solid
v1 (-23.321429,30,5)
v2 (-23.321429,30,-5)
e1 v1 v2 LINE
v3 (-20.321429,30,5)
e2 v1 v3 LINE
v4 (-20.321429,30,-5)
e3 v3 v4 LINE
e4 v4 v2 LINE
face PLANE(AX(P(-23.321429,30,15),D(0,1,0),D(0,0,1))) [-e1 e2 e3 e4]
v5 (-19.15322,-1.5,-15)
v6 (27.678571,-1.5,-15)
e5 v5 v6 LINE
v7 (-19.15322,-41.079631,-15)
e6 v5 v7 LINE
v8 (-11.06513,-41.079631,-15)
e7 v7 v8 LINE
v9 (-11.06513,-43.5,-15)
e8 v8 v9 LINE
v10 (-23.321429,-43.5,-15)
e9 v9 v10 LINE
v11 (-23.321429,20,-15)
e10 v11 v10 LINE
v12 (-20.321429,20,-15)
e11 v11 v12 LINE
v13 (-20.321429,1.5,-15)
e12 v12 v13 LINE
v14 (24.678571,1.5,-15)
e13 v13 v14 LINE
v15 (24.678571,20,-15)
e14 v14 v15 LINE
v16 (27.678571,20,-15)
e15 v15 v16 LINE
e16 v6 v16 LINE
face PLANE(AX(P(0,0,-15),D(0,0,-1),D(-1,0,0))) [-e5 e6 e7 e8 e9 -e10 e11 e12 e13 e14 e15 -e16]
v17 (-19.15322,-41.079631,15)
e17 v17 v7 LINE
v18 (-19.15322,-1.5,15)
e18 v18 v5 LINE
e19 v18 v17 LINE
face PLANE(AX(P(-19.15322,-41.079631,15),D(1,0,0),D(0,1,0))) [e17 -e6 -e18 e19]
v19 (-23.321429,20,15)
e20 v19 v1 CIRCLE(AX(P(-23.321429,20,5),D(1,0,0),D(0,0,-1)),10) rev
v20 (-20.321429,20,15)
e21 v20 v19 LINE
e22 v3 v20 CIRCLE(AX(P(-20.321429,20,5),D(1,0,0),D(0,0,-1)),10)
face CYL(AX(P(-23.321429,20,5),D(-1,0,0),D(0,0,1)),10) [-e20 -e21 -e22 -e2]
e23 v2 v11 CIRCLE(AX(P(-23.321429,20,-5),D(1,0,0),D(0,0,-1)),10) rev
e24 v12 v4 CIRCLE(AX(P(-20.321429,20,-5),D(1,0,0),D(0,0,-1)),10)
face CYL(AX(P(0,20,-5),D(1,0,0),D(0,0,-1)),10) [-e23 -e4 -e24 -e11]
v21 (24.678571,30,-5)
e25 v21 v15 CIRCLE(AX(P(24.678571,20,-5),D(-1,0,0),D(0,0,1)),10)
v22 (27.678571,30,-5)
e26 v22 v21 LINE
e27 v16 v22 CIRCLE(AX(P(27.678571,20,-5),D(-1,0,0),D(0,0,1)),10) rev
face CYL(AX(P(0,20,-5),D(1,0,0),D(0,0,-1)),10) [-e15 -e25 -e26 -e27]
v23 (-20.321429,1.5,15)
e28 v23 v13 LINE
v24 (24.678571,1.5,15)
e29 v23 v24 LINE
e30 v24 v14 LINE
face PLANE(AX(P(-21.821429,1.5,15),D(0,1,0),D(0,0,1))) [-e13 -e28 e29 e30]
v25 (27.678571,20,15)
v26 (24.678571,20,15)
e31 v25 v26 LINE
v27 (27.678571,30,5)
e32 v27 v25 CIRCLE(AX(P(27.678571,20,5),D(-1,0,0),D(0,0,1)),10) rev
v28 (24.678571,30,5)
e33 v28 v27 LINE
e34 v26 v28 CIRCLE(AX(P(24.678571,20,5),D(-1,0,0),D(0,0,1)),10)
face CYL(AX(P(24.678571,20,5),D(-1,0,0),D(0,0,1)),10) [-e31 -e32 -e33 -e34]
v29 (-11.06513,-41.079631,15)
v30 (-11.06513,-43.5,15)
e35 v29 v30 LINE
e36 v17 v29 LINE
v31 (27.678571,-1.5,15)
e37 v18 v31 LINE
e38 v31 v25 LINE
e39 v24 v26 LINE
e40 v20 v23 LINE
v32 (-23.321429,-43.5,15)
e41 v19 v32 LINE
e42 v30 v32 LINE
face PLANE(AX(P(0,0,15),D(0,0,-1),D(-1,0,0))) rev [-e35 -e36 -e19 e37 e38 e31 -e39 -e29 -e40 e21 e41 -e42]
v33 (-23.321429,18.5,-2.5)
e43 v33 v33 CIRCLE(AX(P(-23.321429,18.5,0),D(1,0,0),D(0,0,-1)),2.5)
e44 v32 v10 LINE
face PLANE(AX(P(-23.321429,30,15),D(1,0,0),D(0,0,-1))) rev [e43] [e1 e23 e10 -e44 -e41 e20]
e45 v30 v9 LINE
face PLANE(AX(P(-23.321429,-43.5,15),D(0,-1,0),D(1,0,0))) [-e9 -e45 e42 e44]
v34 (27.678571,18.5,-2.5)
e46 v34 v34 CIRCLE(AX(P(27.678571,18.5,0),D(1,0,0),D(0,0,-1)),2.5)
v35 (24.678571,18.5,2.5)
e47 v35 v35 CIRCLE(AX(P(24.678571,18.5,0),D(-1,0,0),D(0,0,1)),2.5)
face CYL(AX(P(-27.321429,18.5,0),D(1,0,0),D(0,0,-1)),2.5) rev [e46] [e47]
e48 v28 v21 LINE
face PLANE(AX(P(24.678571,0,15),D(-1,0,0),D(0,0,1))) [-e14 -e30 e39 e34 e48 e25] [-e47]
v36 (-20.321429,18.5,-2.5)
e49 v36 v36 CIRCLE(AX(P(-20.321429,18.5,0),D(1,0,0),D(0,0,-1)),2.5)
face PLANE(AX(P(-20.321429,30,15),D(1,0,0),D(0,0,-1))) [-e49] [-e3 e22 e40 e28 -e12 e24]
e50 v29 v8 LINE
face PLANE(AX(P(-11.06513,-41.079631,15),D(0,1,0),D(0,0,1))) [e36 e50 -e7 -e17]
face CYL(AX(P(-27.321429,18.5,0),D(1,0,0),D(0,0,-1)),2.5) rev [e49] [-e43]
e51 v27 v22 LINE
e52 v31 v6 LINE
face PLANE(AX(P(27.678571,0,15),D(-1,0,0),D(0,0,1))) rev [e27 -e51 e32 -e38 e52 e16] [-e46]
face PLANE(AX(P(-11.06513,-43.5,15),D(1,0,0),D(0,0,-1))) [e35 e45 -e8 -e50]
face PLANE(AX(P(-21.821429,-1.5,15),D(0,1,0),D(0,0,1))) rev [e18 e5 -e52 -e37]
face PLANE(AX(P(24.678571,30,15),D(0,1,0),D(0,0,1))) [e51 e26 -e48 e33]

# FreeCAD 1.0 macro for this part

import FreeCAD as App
import Part
import Sketcher


def edges_at(feature, points):
    """Names of the edges that pass closest to the given points."""
    edges = feature.Shape.Edges
    near = lambda p: min(range(len(edges)), key=lambda i: edges[i].distToShape(Part.Vertex(*p))[0])
    return sorted({f"Edge{near(p) + 1}" for p in points})

doc = App.newDocument("Part")
body = doc.addObject("PartDesign::Body", "Body")

# Sketch on XY plane
sketch1 = doc.addObject("Sketcher::SketchObject", "Sketch")
body.addObject(sketch1)
sketch1.AttachmentSupport = (doc.XY_Plane, [""])
sketch1.MapMode = "FlatFace"
sketch1.addGeometry(Part.LineSegment(App.Vector(-23.3, 30, 0), App.Vector(-23.3, -1.5, 0)), False)
sketch1.addGeometry(Part.LineSegment(App.Vector(-23.3, -1.5, 0), App.Vector(27.7, -1.5, 0)), False)
sketch1.addGeometry(Part.LineSegment(App.Vector(27.7, -1.5, 0), App.Vector(27.7, 30, 0)), False)
sketch1.addGeometry(Part.LineSegment(App.Vector(27.7, 30, 0), App.Vector(24.7, 30, 0)), False)
sketch1.addGeometry(Part.LineSegment(App.Vector(24.7, 30, 0), App.Vector(24.7, 1.5, 0)), False)
sketch1.addGeometry(Part.LineSegment(App.Vector(24.7, 1.5, 0), App.Vector(-20.3, 1.5, 0)), False)
sketch1.addGeometry(Part.LineSegment(App.Vector(-20.3, 1.5, 0), App.Vector(-20.3, 30, 0)), False)
sketch1.addGeometry(Part.LineSegment(App.Vector(-20.3, 30, 0), App.Vector(-23.3, 30, 0)), False)
sketch1.addConstraint(Sketcher.Constraint("Coincident", 0, 2, 1, 1))
sketch1.addConstraint(Sketcher.Constraint("Coincident", 1, 2, 2, 1))
sketch1.addConstraint(Sketcher.Constraint("Coincident", 2, 2, 3, 1))
sketch1.addConstraint(Sketcher.Constraint("Coincident", 3, 2, 4, 1))
sketch1.addConstraint(Sketcher.Constraint("Coincident", 4, 2, 5, 1))
sketch1.addConstraint(Sketcher.Constraint("Coincident", 5, 2, 6, 1))
sketch1.addConstraint(Sketcher.Constraint("Coincident", 6, 2, 7, 1))
sketch1.addConstraint(Sketcher.Constraint("Coincident", 7, 2, 0, 1))
sketch1.addConstraint(Sketcher.Constraint("Vertical", 0))
sketch1.addConstraint(Sketcher.Constraint("Horizontal", 1))
sketch1.addConstraint(Sketcher.Constraint("Vertical", 2))
sketch1.addConstraint(Sketcher.Constraint("Horizontal", 3))
sketch1.addConstraint(Sketcher.Constraint("Vertical", 4))
sketch1.addConstraint(Sketcher.Constraint("Horizontal", 5))
sketch1.addConstraint(Sketcher.Constraint("Vertical", 6))
sketch1.addConstraint(Sketcher.Constraint("Horizontal", 7))
sketch1.addConstraint(Sketcher.Constraint("Horizontal", 3, 2, 6, 2))
sketch1.addConstraint(Sketcher.Constraint("Equal", 3, 7))
sketch1.addConstraint(Sketcher.Constraint("DistanceX", 1, 1, 1, 2, 51.0))
sketch1.addConstraint(Sketcher.Constraint("DistanceX", 3, 2, 3, 1, 3.0))
sketch1.addConstraint(Sketcher.Constraint("DistanceY", 0, 2, 0, 1, 31.5))
sketch1.addConstraint(Sketcher.Constraint("DistanceY", 4, 2, 4, 1, 28.5))
sketch1.addConstraint(Sketcher.Constraint("DistanceY", -1, 1, 2, 2, 30.0))
sketch1.addConstraint(Sketcher.Constraint("DistanceX", 0, 2, -1, 1, 23.321429))
pad1 = doc.addObject("PartDesign::Pad", "Pad")
body.addObject(pad1)
pad1.Profile = sketch1
pad1.Length = 30
pad1.Midplane = True
doc.recompute()

fillet = doc.addObject("PartDesign::Fillet", "Fillet")
body.addObject(fillet)
fillet.Base = (pad1, edges_at(pad1, [
    (-21.821, 30, 15),
    (26.179, 30, 15),
    (-21.821, 30, -15),
    (26.179, 30, -15),
]))
fillet.Radius = 10

# Sketch on YZ plane
sketch2 = doc.addObject("Sketcher::SketchObject", "Sketch001")
body.addObject(sketch2)
sketch2.AttachmentSupport = (doc.YZ_Plane, [""])
sketch2.MapMode = "FlatFace"
sketch2.AttachmentOffset = App.Placement(App.Vector(0, 0, 27.678571), App.Rotation())
sketch2.addGeometry(Part.Circle(App.Vector(18.5, 0, 0), App.Vector(0, 0, 1), 2.5), False)
sketch2.addConstraint(Sketcher.Constraint("PointOnObject", 0, 3, -1))
sketch2.addConstraint(Sketcher.Constraint("Diameter", 0, 5.0))
sketch2.addConstraint(Sketcher.Constraint("DistanceX", -1, 1, 0, 3, 18.5))
pocket1 = doc.addObject("PartDesign::Pocket", "Pocket")
body.addObject(pocket1)
pocket1.Profile = sketch2
pocket1.Length = 55

# Sketch on XY plane
sketch3 = doc.addObject("Sketcher::SketchObject", "Sketch002")
body.addObject(sketch3)
sketch3.AttachmentSupport = (doc.XY_Plane, [""])
sketch3.MapMode = "FlatFace"
sketch3.AttachmentOffset = App.Placement(App.Vector(0, 0, -15), App.Rotation())
sketch3.addGeometry(Part.LineSegment(App.Vector(-23.3, -43.5, 0), App.Vector(-23.3, -1.5, 0)), False)
sketch3.addGeometry(Part.LineSegment(App.Vector(-23.3, -1.5, 0), App.Vector(-19.2, -1.5, 0)), False)
sketch3.addGeometry(Part.LineSegment(App.Vector(-19.2, -1.5, 0), App.Vector(-19.2, -41.1, 0)), False)
sketch3.addGeometry(Part.LineSegment(App.Vector(-19.2, -41.1, 0), App.Vector(-11.1, -41.1, 0)), False)
sketch3.addGeometry(Part.LineSegment(App.Vector(-11.1, -41.1, 0), App.Vector(-11.1, -43.5, 0)), False)
sketch3.addGeometry(Part.LineSegment(App.Vector(-11.1, -43.5, 0), App.Vector(-23.3, -43.5, 0)), False)
sketch3.addConstraint(Sketcher.Constraint("Coincident", 0, 2, 1, 1))
sketch3.addConstraint(Sketcher.Constraint("Coincident", 1, 2, 2, 1))
sketch3.addConstraint(Sketcher.Constraint("Coincident", 2, 2, 3, 1))
sketch3.addConstraint(Sketcher.Constraint("Coincident", 3, 2, 4, 1))
sketch3.addConstraint(Sketcher.Constraint("Coincident", 4, 2, 5, 1))
sketch3.addConstraint(Sketcher.Constraint("Coincident", 5, 2, 0, 1))
sketch3.addConstraint(Sketcher.Constraint("Vertical", 0))
sketch3.addConstraint(Sketcher.Constraint("Horizontal", 1))
sketch3.addConstraint(Sketcher.Constraint("Vertical", 2))
sketch3.addConstraint(Sketcher.Constraint("Horizontal", 3))
sketch3.addConstraint(Sketcher.Constraint("Vertical", 4))
sketch3.addConstraint(Sketcher.Constraint("Horizontal", 5))
sketch3.addConstraint(Sketcher.Constraint("DistanceY", 0, 1, 0, 2, 42.0))
sketch3.addConstraint(Sketcher.Constraint("DistanceY", 0, 2, -1, 1, 1.5))
sketch3.addConstraint(Sketcher.Constraint("DistanceX", 5, 2, 5, 1, 12.256298))
sketch3.addConstraint(Sketcher.Constraint("DistanceX", 1, 1, 1, 2, 4.168208))
sketch3.addConstraint(Sketcher.Constraint("DistanceY", 2, 2, 2, 1, 39.579631))
sketch3.addConstraint(Sketcher.Constraint("DistanceX", 0, 2, -1, 1, 23.321429))
pad2 = doc.addObject("PartDesign::Pad", "Pad001")
body.addObject(pad2)
pad2.Profile = sketch3
pad2.Length = 30

doc.recompute()
